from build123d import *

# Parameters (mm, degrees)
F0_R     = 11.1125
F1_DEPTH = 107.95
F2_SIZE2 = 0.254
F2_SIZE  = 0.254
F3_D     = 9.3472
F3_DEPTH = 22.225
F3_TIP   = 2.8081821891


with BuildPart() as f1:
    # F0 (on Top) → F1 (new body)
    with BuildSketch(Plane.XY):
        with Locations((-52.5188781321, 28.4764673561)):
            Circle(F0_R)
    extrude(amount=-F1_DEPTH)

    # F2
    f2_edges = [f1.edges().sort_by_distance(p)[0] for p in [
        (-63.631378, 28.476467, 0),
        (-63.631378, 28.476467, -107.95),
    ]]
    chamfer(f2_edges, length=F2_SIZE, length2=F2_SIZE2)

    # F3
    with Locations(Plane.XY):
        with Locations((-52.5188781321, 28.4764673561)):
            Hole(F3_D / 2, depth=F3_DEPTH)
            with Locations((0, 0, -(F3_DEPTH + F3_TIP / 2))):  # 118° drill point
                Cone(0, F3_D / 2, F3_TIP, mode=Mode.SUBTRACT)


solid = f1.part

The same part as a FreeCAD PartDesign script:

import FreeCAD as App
import Part
import Sketcher

V = App.Vector
Q = App.Units.Quantity


def edges_at(feature, points):
    """Names of the edges that pass closest to the given points."""
    edges = feature.Shape.Edges
    near = lambda p: min(range(len(edges)), key=lambda i: edges[i].distToShape(Part.Vertex(*p))[0])
    return sorted({f"Edge{near(p) + 1}" for p in points})

doc = App.newDocument("Part")
body = doc.addObject("PartDesign::Body", "Body")

# Sketch on XY plane
sketch1 = body.newObject("Sketcher::SketchObject", "Sketch")
sketch1.AttachmentSupport = (doc.getObject("XY_Plane"), [""])
sketch1.MapMode = "FlatFace"
sketch1.addGeometry(Part.Circle(V(-53, 28, 0), V(0, 0, 1), 11), False)
sketch1.addConstraint([
    Sketcher.Constraint("Diameter", 0, Q("0.875 in")),
    Sketcher.Constraint("DistanceX", 0, 3, -1, 1, 52.518878),
    Sketcher.Constraint("DistanceY", -1, 1, 0, 3, 28.476467),
])
pad1 = body.newObject("PartDesign::Pad", "Pad")
pad1.Profile = sketch1
pad1.Length = Q("4.25 in")
pad1.Reversed = True
doc.recompute()

chamfer = body.newObject("PartDesign::Chamfer", "Chamfer")
chamfer.Base = (pad1, edges_at(pad1, [(-63.631, 28.476, 0), (-63.631, 28.476, -107.95)]))
chamfer.ChamferType = "Two distances"
chamfer.Size = Q("0.01 in")
chamfer.Size2 = Q("0.01 in")

# Sketch on XY plane
sketch2 = body.newObject("Sketcher::SketchObject", "Sketch001")
sketch2.AttachmentSupport = (doc.getObject("XY_Plane"), [""])
sketch2.MapMode = "FlatFace"
sketch2.addGeometry(Part.Circle(V(-52.5, 28.5, 0), V(0, 0, 1), 4.7), False)
sketch2.addConstraint([
    Sketcher.Constraint("Diameter", 0, Q("0.368 in")),
    Sketcher.Constraint("DistanceX", 0, 3, -1, 1, 52.518878),
    Sketcher.Constraint("DistanceY", -1, 1, 0, 3, 28.476467),
])
doc.recompute()
hole = body.newObject("PartDesign::Hole", "Hole")
hole.Profile = sketch2
hole.ThreadType = "None"
hole.Diameter = Q("0.368 in")
hole.DepthType = "Dimension"
hole.Depth = Q("0.875 in")
hole.DrillPoint = "Angled"
hole.DrillPointAngle = 118

doc.recompute()
